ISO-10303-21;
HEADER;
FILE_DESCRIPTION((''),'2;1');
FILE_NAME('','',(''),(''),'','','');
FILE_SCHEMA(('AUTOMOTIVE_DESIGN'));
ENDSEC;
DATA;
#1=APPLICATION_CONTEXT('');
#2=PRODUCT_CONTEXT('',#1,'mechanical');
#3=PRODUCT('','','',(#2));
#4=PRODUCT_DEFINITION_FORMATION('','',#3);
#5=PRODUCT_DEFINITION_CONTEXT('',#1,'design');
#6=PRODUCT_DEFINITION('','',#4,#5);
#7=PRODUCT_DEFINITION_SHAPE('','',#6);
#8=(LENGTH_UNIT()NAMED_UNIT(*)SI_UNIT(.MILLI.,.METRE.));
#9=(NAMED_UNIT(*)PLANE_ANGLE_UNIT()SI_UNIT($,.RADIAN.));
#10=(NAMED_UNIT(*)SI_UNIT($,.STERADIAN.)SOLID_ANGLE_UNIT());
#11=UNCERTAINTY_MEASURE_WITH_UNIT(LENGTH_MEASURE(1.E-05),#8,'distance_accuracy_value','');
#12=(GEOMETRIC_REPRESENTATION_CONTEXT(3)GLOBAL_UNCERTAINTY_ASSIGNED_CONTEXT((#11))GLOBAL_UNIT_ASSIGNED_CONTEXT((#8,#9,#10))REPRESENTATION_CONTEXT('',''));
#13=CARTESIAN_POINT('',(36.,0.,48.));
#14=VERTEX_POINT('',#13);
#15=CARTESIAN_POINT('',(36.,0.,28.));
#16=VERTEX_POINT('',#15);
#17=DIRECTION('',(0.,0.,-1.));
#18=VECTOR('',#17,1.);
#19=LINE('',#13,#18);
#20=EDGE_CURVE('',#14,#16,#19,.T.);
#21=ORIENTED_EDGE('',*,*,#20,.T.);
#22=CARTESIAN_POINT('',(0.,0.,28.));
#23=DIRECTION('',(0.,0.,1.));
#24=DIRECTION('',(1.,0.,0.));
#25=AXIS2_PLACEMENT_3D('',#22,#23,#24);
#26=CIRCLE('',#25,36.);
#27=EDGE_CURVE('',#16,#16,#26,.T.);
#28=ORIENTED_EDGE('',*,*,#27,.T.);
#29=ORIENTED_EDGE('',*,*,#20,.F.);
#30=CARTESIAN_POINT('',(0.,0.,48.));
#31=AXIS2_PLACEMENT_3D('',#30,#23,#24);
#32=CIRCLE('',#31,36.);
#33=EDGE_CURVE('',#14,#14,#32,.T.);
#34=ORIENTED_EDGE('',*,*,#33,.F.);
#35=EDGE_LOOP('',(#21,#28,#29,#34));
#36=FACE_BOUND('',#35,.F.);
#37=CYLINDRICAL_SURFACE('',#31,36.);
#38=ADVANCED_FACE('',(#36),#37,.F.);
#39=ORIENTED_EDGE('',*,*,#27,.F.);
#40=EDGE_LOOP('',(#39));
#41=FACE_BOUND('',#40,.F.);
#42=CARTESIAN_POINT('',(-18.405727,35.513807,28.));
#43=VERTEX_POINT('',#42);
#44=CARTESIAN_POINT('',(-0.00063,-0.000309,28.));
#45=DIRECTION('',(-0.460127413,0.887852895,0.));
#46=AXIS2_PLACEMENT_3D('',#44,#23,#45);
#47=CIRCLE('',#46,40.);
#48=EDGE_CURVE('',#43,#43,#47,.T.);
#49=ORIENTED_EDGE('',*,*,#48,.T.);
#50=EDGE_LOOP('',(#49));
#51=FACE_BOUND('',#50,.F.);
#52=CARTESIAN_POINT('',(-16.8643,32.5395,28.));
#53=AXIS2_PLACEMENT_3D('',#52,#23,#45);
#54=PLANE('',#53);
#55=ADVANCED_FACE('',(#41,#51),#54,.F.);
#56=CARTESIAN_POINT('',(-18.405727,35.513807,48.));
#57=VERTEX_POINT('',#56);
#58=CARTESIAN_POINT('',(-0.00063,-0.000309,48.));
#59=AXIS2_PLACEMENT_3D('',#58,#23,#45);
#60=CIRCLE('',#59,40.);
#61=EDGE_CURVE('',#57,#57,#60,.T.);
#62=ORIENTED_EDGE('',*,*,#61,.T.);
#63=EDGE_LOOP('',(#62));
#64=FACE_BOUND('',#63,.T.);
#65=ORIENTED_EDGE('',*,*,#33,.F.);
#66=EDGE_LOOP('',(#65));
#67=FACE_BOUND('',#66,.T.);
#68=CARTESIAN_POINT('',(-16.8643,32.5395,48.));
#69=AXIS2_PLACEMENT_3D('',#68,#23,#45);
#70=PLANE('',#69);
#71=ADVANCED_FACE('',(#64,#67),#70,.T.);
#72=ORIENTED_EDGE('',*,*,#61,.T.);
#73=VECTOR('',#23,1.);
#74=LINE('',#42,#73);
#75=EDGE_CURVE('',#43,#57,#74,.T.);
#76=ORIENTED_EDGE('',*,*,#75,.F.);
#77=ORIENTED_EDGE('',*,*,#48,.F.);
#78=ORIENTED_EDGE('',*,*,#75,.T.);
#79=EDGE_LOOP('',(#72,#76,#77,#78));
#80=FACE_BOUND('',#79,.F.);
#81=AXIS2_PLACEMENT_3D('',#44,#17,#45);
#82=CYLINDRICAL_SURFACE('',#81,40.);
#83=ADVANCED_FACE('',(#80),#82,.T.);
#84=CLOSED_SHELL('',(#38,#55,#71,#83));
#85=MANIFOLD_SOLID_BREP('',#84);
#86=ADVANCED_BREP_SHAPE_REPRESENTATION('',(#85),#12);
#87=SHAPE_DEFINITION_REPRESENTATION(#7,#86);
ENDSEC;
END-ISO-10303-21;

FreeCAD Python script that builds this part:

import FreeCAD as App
import Part
import Sketcher
from FreeCAD import Vector
Q = App.Units.Quantity

doc = App.newDocument("Part")
body = doc.addObject("PartDesign::Body", "Body")

# Sketch on XY plane
sketch1 = doc.addObject("Sketcher::SketchObject", "Sketch")
body.addObject(sketch1)
sketch1.AttachmentSupport = (doc.XY_Plane, [""])
sketch1.MapMode = "FlatFace"
sketch1.AttachmentOffset = App.Placement(Vector(0, 0, 28), App.Rotation())
sketch1.addGeometry([
    Part.Circle(Vector(0, 0, 0), Vector(0, 0, 1), 40),
    Part.Circle(Vector(0, 0, 0), Vector(0, 0, 1), 32),
], False)
sketch1.addConstraint([
    Sketcher.Constraint("Coincident", 1, 3, 0, 3),
    Sketcher.Constraint("Diameter", 0, Q("80 mm")),
    Sketcher.Constraint("Diameter", 1, Q("64 mm")),
    Sketcher.Constraint("DistanceX", 0, 3, -1, 1, Q("0.0006 mm")),
    Sketcher.Constraint("DistanceY", 0, 3, -1, 1, Q("0.0003 mm")),
])
pad1 = doc.addObject("PartDesign::Pad", "Pad")
body.addObject(pad1)
pad1.Profile = sketch1
pad1.Length = 20

# Sketch on XY plane
sketch2 = doc.addObject("Sketcher::SketchObject", "Sketch001")
body.addObject(sketch2)
sketch2.AttachmentSupport = (doc.XY_Plane, [""])
sketch2.MapMode = "FlatFace"
sketch2.AttachmentOffset = App.Placement(Vector(0, 0, 48), App.Rotation())
sketch2.addGeometry(Part.Circle(Vector(0, 0, 0), Vector(0, 0, 1), 36), False)
sketch2.addConstraint([
    Sketcher.Constraint("Coincident", 0, 3, -1, 1),
    Sketcher.Constraint("Diameter", 0, Q("72 mm")),
])
pocket1 = doc.addObject("PartDesign::Pocket", "Pocket")
body.addObject(pocket1)
pocket1.Profile = sketch2
pocket1.Length = 20

doc.recompute()
